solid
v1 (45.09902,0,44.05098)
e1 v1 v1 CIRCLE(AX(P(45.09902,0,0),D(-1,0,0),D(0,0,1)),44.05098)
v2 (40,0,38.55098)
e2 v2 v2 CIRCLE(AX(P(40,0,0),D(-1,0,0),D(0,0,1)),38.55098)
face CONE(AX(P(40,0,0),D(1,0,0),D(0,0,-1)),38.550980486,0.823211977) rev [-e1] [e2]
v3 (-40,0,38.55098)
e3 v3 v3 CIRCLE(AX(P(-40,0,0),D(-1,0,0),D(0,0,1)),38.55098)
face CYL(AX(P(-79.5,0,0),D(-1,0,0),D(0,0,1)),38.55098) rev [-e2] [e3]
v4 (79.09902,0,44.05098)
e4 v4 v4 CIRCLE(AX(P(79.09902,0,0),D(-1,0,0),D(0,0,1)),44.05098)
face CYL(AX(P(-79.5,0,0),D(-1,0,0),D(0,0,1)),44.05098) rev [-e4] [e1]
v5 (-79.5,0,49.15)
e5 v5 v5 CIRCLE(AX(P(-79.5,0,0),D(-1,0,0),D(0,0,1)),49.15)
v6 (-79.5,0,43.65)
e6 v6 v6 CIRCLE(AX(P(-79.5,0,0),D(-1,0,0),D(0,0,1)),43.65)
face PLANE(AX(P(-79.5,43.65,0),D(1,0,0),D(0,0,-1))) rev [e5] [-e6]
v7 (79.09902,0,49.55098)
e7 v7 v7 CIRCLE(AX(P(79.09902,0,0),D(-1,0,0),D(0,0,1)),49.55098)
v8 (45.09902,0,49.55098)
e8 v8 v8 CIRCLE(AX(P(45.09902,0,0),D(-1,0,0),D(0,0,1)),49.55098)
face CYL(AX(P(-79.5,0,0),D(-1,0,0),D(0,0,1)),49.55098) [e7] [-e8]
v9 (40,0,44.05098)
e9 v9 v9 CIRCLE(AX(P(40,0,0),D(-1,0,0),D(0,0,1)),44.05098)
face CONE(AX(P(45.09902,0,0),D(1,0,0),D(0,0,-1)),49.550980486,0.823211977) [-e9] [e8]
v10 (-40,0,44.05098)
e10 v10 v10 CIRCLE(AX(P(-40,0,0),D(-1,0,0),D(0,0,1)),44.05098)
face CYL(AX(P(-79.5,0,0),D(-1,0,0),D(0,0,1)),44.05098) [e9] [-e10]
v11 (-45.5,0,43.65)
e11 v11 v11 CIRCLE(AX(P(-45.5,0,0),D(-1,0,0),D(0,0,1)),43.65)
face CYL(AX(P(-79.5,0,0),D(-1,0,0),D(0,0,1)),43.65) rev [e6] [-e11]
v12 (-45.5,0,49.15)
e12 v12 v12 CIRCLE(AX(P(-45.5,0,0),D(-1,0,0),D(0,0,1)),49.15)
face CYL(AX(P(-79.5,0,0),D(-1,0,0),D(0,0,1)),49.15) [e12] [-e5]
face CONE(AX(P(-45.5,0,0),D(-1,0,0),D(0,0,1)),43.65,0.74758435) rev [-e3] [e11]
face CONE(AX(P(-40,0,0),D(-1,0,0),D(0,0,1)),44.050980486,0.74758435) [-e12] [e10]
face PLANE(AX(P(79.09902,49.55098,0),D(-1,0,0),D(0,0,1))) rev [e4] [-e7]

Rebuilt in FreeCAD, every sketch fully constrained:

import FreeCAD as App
import Part
import Sketcher

V = App.Vector

doc = App.newDocument("Part")
body = doc.addObject("PartDesign::Body", "Body")

sketch1 = body.newObject("Sketcher::SketchObject", "Sketch")
sketch1.AttachmentSupport = (doc.getObject("XY_Plane"), [""])
sketch1.MapMode = "FlatFace"
sketch1.addGeometry([
    Part.LineSegment(V(-45.5, 49.15, 0), V(-79.5, 49.15, 0)),
    Part.LineSegment(V(-79.5, 49.15, 0), V(-79.5, 43.65, 0)),
    Part.LineSegment(V(-79.5, 43.65, 0), V(-45.5, 43.65, 0)),
    Part.LineSegment(V(-45.5, 43.65, 0), V(-40, 38.55098, 0)),
    Part.LineSegment(V(-40, 38.55098, 0), V(40, 38.55098, 0)),
    Part.LineSegment(V(40, 38.55098, 0), V(45.09902, 44.05098, 0)),
    Part.LineSegment(V(45.09902, 44.05098, 0), V(79.09902, 44.05098, 0)),
    Part.LineSegment(V(79.09902, 44.05098, 0), V(79.09902, 49.55098, 0)),
    Part.LineSegment(V(79.09902, 49.55098, 0), V(45.09902, 49.55098, 0)),
    Part.LineSegment(V(45.09902, 49.55098, 0), V(40, 44.05098, 0)),
    Part.LineSegment(V(40, 44.05098, 0), V(-40, 44.05098, 0)),
    Part.LineSegment(V(-40, 44.05098, 0), V(-45.5, 49.15, 0)),
], False)
sketch1.addConstraint([
    Sketcher.Constraint("Coincident", 0, 2, 1, 1),
    Sketcher.Constraint("Coincident", 1, 2, 2, 1),
    Sketcher.Constraint("Coincident", 2, 2, 3, 1),
    Sketcher.Constraint("Coincident", 3, 2, 4, 1),
    Sketcher.Constraint("Coincident", 4, 2, 5, 1),
    Sketcher.Constraint("Coincident", 5, 2, 6, 1),
    Sketcher.Constraint("Coincident", 6, 2, 7, 1),
    Sketcher.Constraint("Coincident", 7, 2, 8, 1),
    Sketcher.Constraint("Coincident", 8, 2, 9, 1),
    Sketcher.Constraint("Coincident", 9, 2, 10, 1),
    Sketcher.Constraint("Coincident", 10, 2, 11, 1),
    Sketcher.Constraint("Coincident", 11, 2, 0, 1),
    Sketcher.Constraint("Horizontal", 0),
    Sketcher.Constraint("Vertical", 1),
    Sketcher.Constraint("Horizontal", 2),
    Sketcher.Constraint("Horizontal", 4),
    Sketcher.Constraint("Horizontal", 6),
    Sketcher.Constraint("Vertical", 7),
    Sketcher.Constraint("Horizontal", 8),
    Sketcher.Constraint("Horizontal", 10),
    Sketcher.Constraint("Perpendicular", 3, 5),
    Sketcher.Constraint("Parallel", 5, 9),
    Sketcher.Constraint("Perpendicular", 9, 11),
    Sketcher.Constraint("Horizontal", 6, 2, 9, 2),
    Sketcher.Constraint("Vertical", 5, 2, 8, 2),
    Sketcher.Constraint("Vertical", 4, 2, 9, 2),
    Sketcher.Constraint("Vertical", 3, 2, 10, 2),
    Sketcher.Constraint("Vertical", 2, 2, 11, 2),
    Sketcher.Constraint("Equal", 2, 6),
    Sketcher.Constraint("Equal", 3, 5),
    Sketcher.Constraint("DistanceX", 0, 2, 0, 1, 34.0),
    Sketcher.Constraint("DistanceX", 4, 1, 4, 2, 80.0),
    Sketcher.Constraint("DistanceY", 1, 2, 1, 1, 5.5),
    Sketcher.Constraint("DistanceX", 3, 2, -1, 1, 40.0),
    Sketcher.Constraint("Distance", 3, 7.5),
    Sketcher.Constraint("DistanceY", -1, 1, 0, 2, 49.15),
])
revolution = body.newObject("PartDesign::Revolution", "Revolution")
revolution.Profile = sketch1
revolution.ReferenceAxis = (sketch1, ["H_Axis"])
revolution.Angle = 360

doc.recompute()
